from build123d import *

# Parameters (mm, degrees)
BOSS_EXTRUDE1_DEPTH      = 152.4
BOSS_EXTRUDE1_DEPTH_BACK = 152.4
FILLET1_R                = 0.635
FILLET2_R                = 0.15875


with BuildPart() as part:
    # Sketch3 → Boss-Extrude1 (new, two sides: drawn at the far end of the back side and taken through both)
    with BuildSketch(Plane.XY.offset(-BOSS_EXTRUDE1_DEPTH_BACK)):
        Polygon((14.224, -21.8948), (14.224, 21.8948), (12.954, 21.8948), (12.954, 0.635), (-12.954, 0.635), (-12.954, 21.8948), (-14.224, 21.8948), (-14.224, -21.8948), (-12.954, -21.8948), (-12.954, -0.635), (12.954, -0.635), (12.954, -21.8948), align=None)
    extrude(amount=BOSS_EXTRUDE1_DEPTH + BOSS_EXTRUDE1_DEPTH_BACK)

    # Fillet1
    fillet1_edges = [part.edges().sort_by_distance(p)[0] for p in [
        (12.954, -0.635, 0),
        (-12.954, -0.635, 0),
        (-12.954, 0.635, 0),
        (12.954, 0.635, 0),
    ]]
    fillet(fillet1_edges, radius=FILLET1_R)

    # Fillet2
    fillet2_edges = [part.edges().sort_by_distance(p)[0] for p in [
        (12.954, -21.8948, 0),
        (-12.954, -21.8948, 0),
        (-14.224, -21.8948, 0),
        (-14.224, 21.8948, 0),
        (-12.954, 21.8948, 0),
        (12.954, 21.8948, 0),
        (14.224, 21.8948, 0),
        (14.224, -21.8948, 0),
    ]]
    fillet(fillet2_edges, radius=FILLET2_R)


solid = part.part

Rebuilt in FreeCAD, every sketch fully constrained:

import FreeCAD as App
import Part
import Sketcher
from FreeCAD import Vector
Q = App.Units.Quantity


def edges_at(feature, points):
    """Names of the edges that pass closest to the given points."""
    edges = feature.Shape.Edges
    near = lambda p: min(range(len(edges)), key=lambda i: edges[i].distToShape(Part.Vertex(*p))[0])
    return sorted({f"Edge{near(p) + 1}" for p in points})

doc = App.newDocument("Part")
body = doc.addObject("PartDesign::Body", "Body")

sketch1 = body.newObject("Sketcher::SketchObject", "Sketch")
sketch1.AttachmentSupport = (doc.getObject("XY_Plane"), [""])
sketch1.MapMode = "FlatFace"
sketch1.addGeometry(Part.LineSegment(Vector(14.2, -21.9, 0), Vector(14.2, 21.9, 0)), False)
sketch1.addGeometry(Part.LineSegment(Vector(14.2, 21.9, 0), Vector(13, 21.9, 0)), False)
sketch1.addGeometry(Part.LineSegment(Vector(13, 21.9, 0), Vector(13, 0.6, 0)), False)
sketch1.addGeometry(Part.LineSegment(Vector(13, 0.6, 0), Vector(-13, 0.6, 0)), False)
sketch1.addGeometry(Part.LineSegment(Vector(-13, 0.6, 0), Vector(-13, 21.9, 0)), False)
sketch1.addGeometry(Part.LineSegment(Vector(-13, 21.9, 0), Vector(-14.2, 21.9, 0)), False)
sketch1.addGeometry(Part.LineSegment(Vector(-14.2, 21.9, 0), Vector(-14.2, -21.9, 0)), False)
sketch1.addGeometry(Part.LineSegment(Vector(-14.2, -21.9, 0), Vector(-13, -21.9, 0)), False)
sketch1.addGeometry(Part.LineSegment(Vector(-13, -21.9, 0), Vector(-13, -0.6, 0)), False)
sketch1.addGeometry(Part.LineSegment(Vector(-13, -0.6, 0), Vector(13, -0.6, 0)), False)
sketch1.addGeometry(Part.LineSegment(Vector(13, -0.6, 0), Vector(13, -21.9, 0)), False)
sketch1.addGeometry(Part.LineSegment(Vector(13, -21.9, 0), Vector(14.2, -21.9, 0)), False)
sketch1.addConstraint(Sketcher.Constraint("Coincident", 0, 2, 1, 1))
sketch1.addConstraint(Sketcher.Constraint("Coincident", 1, 2, 2, 1))
sketch1.addConstraint(Sketcher.Constraint("Coincident", 2, 2, 3, 1))
sketch1.addConstraint(Sketcher.Constraint("Coincident", 3, 2, 4, 1))
sketch1.addConstraint(Sketcher.Constraint("Coincident", 4, 2, 5, 1))
sketch1.addConstraint(Sketcher.Constraint("Coincident", 5, 2, 6, 1))
sketch1.addConstraint(Sketcher.Constraint("Coincident", 6, 2, 7, 1))
sketch1.addConstraint(Sketcher.Constraint("Coincident", 7, 2, 8, 1))
sketch1.addConstraint(Sketcher.Constraint("Coincident", 8, 2, 9, 1))
sketch1.addConstraint(Sketcher.Constraint("Coincident", 9, 2, 10, 1))
sketch1.addConstraint(Sketcher.Constraint("Coincident", 10, 2, 11, 1))
sketch1.addConstraint(Sketcher.Constraint("Coincident", 11, 2, 0, 1))
sketch1.addConstraint(Sketcher.Constraint("Vertical", 0))
sketch1.addConstraint(Sketcher.Constraint("Horizontal", 1))
sketch1.addConstraint(Sketcher.Constraint("Vertical", 2))
sketch1.addConstraint(Sketcher.Constraint("Horizontal", 3))
sketch1.addConstraint(Sketcher.Constraint("Vertical", 4))
sketch1.addConstraint(Sketcher.Constraint("Horizontal", 5))
sketch1.addConstraint(Sketcher.Constraint("Vertical", 6))
sketch1.addConstraint(Sketcher.Constraint("Horizontal", 7))
sketch1.addConstraint(Sketcher.Constraint("Vertical", 8))
sketch1.addConstraint(Sketcher.Constraint("Horizontal", 9))
sketch1.addConstraint(Sketcher.Constraint("Vertical", 10))
sketch1.addConstraint(Sketcher.Constraint("Horizontal", 11))
sketch1.addConstraint(Sketcher.Constraint("Symmetric", 0, 2, 6, 2, -1, 1))
sketch1.addConstraint(Sketcher.Constraint("Symmetric", 2, 2, 8, 2, -1, 1))
sketch1.addConstraint(Sketcher.Constraint("Symmetric", 4, 2, 10, 2, -1, 1))
sketch1.addConstraint(Sketcher.Constraint("Symmetric", 1, 2, 4, 2, -2))
sketch1.addConstraint(Sketcher.Constraint("DistanceX", 1, 2, 1, 1, Q("0.05 in")))
sketch1.addConstraint(Sketcher.Constraint("DistanceX", 3, 2, 3, 1, Q("1.02 in")))
sketch1.addConstraint(Sketcher.Constraint("DistanceY", 0, 1, 0, 2, Q("1.724 in")))
sketch1.addConstraint(Sketcher.Constraint("DistanceY", 2, 2, 2, 1, Q("0.837 in")))
pad1 = body.newObject("PartDesign::Pad", "Pad")
pad1.Profile = sketch1
pad1.Type = "TwoLengths"
pad1.Length = Q("6 in")
pad1.Length2 = Q("6 in")
doc.recompute()

fillet = body.newObject("PartDesign::Fillet", "Fillet")
fillet.Base = (pad1, edges_at(pad1, [
    (12.954, -0.635, 0),
    (-12.954, -0.635, 0),
    (-12.954, 0.635, 0),
    (12.954, 0.635, 0),
]))
fillet.Radius = Q("0.025 in")
doc.recompute()

fillet2 = body.newObject("PartDesign::Fillet", "Fillet001")
fillet2.Base = (fillet, edges_at(fillet, [
    (12.954, -21.895, 0),
    (-12.954, -21.895, 0),
    (-14.224, -21.895, 0),
    (-14.224, 21.895, 0),
    (-12.954, 21.895, 0),
    (12.954, 21.895, 0),
    (14.224, 21.895, 0),
    (14.224, -21.895, 0),
]))
fillet2.Radius = 0.15875

doc.recompute()
